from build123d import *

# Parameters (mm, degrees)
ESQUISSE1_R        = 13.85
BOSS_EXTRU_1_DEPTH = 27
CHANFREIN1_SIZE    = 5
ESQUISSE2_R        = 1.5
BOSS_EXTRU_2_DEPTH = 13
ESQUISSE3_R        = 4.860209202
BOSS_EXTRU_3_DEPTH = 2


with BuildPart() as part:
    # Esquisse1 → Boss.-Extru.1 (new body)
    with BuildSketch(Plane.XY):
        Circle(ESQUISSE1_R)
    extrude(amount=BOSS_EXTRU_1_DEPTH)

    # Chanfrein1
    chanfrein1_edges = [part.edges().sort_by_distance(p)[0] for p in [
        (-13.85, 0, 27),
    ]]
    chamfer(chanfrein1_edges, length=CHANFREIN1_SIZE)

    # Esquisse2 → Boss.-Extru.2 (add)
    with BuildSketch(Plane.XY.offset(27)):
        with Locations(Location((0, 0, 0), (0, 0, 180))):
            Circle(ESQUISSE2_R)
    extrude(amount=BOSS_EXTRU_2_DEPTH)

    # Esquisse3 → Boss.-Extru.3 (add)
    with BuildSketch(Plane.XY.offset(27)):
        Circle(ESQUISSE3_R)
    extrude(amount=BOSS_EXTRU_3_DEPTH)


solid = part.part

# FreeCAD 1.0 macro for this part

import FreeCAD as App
import Part
import Sketcher

V = App.Vector
Q = App.Units.Quantity


def edges_at(feature, points):
    """Names of the edges that pass closest to the given points."""
    edges = feature.Shape.Edges
    near = lambda p: min(range(len(edges)), key=lambda i: edges[i].distToShape(Part.Vertex(*p))[0])
    return sorted({f"Edge{near(p) + 1}" for p in points})

doc = App.newDocument("Part")
params = doc.addObject("Spreadsheet::Sheet", "Params")
for row, (alias, value) in enumerate([
    ("sketch1_diameter", "27.7 mm"),
    ("pad1_length", "27 mm"),
    ("chamfer_size", "5 mm"),
    ("sketch2_diameter", "3 mm"),
    ("pad2_length", "13 mm"),
    ("pad3_length", "2 mm"),
], start=1):
    params.set(f"A{row}", alias)
    params.set(f"B{row}", "=" + value)
    params.setAlias(f"B{row}", alias)

body = doc.addObject("PartDesign::Body", "Body")

# Sketch on XY plane
sketch1 = body.newObject("Sketcher::SketchObject", "Sketch")
sketch1.AttachmentSupport = (doc.getObject("XY_Plane"), [""])
sketch1.MapMode = "FlatFace"
sketch1.addGeometry(Part.Circle(V(0, 0, 0), V(0, 0, 1), 13.85), False)
sketch1.addConstraint([
    Sketcher.Constraint("Coincident", 0, 3, -1, 1),
    Sketcher.Constraint("Diameter", 0, Q("27.7 mm")),
])
sketch1.setExpression("Constraints[1]", "Params.sketch1_diameter")
pad1 = body.newObject("PartDesign::Pad", "Pad")
pad1.Profile = sketch1
pad1.setExpression("Length", "Params.pad1_length")
doc.recompute()

chamfer = body.newObject("PartDesign::Chamfer", "Chamfer")
chamfer.Base = (pad1, edges_at(pad1, [(-13.85, 0, 27)]))
chamfer.setExpression("Size", "Params.chamfer_size")

# Sketch on XY plane
sketch2 = body.newObject("Sketcher::SketchObject", "Sketch001")
sketch2.AttachmentSupport = (doc.getObject("XY_Plane"), [""])
sketch2.MapMode = "FlatFace"
sketch2.AttachmentOffset = App.Placement(V(0, 0, 27), App.Rotation())
sketch2.addGeometry(Part.Circle(V(0, 0, 0), V(0, 0, 1), 1.5), False)
sketch2.addConstraint([
    Sketcher.Constraint("Coincident", 0, 3, -1, 1),
    Sketcher.Constraint("Diameter", 0, Q("3 mm")),
])
sketch2.setExpression("Constraints[1]", "Params.sketch2_diameter")
pad2 = body.newObject("PartDesign::Pad", "Pad001")
pad2.Profile = sketch2
pad2.setExpression("Length", "Params.pad2_length")

# Sketch on XY plane
sketch3 = body.newObject("Sketcher::SketchObject", "Sketch002")
sketch3.AttachmentSupport = (doc.getObject("XY_Plane"), [""])
sketch3.MapMode = "FlatFace"
sketch3.AttachmentOffset = App.Placement(V(0, 0, 27), App.Rotation())
sketch3.addGeometry(Part.Circle(V(0, 0, 0), V(0, 0, 1), 4.860209), False)
sketch3.addConstraint([
    Sketcher.Constraint("Coincident", 0, 3, -1, 1),
    Sketcher.Constraint("Diameter", 0, Q("9.720418 mm")),
])
pad3 = body.newObject("PartDesign::Pad", "Pad002")
pad3.Profile = sketch3
pad3.setExpression("Length", "Params.pad3_length")

doc.recompute()
